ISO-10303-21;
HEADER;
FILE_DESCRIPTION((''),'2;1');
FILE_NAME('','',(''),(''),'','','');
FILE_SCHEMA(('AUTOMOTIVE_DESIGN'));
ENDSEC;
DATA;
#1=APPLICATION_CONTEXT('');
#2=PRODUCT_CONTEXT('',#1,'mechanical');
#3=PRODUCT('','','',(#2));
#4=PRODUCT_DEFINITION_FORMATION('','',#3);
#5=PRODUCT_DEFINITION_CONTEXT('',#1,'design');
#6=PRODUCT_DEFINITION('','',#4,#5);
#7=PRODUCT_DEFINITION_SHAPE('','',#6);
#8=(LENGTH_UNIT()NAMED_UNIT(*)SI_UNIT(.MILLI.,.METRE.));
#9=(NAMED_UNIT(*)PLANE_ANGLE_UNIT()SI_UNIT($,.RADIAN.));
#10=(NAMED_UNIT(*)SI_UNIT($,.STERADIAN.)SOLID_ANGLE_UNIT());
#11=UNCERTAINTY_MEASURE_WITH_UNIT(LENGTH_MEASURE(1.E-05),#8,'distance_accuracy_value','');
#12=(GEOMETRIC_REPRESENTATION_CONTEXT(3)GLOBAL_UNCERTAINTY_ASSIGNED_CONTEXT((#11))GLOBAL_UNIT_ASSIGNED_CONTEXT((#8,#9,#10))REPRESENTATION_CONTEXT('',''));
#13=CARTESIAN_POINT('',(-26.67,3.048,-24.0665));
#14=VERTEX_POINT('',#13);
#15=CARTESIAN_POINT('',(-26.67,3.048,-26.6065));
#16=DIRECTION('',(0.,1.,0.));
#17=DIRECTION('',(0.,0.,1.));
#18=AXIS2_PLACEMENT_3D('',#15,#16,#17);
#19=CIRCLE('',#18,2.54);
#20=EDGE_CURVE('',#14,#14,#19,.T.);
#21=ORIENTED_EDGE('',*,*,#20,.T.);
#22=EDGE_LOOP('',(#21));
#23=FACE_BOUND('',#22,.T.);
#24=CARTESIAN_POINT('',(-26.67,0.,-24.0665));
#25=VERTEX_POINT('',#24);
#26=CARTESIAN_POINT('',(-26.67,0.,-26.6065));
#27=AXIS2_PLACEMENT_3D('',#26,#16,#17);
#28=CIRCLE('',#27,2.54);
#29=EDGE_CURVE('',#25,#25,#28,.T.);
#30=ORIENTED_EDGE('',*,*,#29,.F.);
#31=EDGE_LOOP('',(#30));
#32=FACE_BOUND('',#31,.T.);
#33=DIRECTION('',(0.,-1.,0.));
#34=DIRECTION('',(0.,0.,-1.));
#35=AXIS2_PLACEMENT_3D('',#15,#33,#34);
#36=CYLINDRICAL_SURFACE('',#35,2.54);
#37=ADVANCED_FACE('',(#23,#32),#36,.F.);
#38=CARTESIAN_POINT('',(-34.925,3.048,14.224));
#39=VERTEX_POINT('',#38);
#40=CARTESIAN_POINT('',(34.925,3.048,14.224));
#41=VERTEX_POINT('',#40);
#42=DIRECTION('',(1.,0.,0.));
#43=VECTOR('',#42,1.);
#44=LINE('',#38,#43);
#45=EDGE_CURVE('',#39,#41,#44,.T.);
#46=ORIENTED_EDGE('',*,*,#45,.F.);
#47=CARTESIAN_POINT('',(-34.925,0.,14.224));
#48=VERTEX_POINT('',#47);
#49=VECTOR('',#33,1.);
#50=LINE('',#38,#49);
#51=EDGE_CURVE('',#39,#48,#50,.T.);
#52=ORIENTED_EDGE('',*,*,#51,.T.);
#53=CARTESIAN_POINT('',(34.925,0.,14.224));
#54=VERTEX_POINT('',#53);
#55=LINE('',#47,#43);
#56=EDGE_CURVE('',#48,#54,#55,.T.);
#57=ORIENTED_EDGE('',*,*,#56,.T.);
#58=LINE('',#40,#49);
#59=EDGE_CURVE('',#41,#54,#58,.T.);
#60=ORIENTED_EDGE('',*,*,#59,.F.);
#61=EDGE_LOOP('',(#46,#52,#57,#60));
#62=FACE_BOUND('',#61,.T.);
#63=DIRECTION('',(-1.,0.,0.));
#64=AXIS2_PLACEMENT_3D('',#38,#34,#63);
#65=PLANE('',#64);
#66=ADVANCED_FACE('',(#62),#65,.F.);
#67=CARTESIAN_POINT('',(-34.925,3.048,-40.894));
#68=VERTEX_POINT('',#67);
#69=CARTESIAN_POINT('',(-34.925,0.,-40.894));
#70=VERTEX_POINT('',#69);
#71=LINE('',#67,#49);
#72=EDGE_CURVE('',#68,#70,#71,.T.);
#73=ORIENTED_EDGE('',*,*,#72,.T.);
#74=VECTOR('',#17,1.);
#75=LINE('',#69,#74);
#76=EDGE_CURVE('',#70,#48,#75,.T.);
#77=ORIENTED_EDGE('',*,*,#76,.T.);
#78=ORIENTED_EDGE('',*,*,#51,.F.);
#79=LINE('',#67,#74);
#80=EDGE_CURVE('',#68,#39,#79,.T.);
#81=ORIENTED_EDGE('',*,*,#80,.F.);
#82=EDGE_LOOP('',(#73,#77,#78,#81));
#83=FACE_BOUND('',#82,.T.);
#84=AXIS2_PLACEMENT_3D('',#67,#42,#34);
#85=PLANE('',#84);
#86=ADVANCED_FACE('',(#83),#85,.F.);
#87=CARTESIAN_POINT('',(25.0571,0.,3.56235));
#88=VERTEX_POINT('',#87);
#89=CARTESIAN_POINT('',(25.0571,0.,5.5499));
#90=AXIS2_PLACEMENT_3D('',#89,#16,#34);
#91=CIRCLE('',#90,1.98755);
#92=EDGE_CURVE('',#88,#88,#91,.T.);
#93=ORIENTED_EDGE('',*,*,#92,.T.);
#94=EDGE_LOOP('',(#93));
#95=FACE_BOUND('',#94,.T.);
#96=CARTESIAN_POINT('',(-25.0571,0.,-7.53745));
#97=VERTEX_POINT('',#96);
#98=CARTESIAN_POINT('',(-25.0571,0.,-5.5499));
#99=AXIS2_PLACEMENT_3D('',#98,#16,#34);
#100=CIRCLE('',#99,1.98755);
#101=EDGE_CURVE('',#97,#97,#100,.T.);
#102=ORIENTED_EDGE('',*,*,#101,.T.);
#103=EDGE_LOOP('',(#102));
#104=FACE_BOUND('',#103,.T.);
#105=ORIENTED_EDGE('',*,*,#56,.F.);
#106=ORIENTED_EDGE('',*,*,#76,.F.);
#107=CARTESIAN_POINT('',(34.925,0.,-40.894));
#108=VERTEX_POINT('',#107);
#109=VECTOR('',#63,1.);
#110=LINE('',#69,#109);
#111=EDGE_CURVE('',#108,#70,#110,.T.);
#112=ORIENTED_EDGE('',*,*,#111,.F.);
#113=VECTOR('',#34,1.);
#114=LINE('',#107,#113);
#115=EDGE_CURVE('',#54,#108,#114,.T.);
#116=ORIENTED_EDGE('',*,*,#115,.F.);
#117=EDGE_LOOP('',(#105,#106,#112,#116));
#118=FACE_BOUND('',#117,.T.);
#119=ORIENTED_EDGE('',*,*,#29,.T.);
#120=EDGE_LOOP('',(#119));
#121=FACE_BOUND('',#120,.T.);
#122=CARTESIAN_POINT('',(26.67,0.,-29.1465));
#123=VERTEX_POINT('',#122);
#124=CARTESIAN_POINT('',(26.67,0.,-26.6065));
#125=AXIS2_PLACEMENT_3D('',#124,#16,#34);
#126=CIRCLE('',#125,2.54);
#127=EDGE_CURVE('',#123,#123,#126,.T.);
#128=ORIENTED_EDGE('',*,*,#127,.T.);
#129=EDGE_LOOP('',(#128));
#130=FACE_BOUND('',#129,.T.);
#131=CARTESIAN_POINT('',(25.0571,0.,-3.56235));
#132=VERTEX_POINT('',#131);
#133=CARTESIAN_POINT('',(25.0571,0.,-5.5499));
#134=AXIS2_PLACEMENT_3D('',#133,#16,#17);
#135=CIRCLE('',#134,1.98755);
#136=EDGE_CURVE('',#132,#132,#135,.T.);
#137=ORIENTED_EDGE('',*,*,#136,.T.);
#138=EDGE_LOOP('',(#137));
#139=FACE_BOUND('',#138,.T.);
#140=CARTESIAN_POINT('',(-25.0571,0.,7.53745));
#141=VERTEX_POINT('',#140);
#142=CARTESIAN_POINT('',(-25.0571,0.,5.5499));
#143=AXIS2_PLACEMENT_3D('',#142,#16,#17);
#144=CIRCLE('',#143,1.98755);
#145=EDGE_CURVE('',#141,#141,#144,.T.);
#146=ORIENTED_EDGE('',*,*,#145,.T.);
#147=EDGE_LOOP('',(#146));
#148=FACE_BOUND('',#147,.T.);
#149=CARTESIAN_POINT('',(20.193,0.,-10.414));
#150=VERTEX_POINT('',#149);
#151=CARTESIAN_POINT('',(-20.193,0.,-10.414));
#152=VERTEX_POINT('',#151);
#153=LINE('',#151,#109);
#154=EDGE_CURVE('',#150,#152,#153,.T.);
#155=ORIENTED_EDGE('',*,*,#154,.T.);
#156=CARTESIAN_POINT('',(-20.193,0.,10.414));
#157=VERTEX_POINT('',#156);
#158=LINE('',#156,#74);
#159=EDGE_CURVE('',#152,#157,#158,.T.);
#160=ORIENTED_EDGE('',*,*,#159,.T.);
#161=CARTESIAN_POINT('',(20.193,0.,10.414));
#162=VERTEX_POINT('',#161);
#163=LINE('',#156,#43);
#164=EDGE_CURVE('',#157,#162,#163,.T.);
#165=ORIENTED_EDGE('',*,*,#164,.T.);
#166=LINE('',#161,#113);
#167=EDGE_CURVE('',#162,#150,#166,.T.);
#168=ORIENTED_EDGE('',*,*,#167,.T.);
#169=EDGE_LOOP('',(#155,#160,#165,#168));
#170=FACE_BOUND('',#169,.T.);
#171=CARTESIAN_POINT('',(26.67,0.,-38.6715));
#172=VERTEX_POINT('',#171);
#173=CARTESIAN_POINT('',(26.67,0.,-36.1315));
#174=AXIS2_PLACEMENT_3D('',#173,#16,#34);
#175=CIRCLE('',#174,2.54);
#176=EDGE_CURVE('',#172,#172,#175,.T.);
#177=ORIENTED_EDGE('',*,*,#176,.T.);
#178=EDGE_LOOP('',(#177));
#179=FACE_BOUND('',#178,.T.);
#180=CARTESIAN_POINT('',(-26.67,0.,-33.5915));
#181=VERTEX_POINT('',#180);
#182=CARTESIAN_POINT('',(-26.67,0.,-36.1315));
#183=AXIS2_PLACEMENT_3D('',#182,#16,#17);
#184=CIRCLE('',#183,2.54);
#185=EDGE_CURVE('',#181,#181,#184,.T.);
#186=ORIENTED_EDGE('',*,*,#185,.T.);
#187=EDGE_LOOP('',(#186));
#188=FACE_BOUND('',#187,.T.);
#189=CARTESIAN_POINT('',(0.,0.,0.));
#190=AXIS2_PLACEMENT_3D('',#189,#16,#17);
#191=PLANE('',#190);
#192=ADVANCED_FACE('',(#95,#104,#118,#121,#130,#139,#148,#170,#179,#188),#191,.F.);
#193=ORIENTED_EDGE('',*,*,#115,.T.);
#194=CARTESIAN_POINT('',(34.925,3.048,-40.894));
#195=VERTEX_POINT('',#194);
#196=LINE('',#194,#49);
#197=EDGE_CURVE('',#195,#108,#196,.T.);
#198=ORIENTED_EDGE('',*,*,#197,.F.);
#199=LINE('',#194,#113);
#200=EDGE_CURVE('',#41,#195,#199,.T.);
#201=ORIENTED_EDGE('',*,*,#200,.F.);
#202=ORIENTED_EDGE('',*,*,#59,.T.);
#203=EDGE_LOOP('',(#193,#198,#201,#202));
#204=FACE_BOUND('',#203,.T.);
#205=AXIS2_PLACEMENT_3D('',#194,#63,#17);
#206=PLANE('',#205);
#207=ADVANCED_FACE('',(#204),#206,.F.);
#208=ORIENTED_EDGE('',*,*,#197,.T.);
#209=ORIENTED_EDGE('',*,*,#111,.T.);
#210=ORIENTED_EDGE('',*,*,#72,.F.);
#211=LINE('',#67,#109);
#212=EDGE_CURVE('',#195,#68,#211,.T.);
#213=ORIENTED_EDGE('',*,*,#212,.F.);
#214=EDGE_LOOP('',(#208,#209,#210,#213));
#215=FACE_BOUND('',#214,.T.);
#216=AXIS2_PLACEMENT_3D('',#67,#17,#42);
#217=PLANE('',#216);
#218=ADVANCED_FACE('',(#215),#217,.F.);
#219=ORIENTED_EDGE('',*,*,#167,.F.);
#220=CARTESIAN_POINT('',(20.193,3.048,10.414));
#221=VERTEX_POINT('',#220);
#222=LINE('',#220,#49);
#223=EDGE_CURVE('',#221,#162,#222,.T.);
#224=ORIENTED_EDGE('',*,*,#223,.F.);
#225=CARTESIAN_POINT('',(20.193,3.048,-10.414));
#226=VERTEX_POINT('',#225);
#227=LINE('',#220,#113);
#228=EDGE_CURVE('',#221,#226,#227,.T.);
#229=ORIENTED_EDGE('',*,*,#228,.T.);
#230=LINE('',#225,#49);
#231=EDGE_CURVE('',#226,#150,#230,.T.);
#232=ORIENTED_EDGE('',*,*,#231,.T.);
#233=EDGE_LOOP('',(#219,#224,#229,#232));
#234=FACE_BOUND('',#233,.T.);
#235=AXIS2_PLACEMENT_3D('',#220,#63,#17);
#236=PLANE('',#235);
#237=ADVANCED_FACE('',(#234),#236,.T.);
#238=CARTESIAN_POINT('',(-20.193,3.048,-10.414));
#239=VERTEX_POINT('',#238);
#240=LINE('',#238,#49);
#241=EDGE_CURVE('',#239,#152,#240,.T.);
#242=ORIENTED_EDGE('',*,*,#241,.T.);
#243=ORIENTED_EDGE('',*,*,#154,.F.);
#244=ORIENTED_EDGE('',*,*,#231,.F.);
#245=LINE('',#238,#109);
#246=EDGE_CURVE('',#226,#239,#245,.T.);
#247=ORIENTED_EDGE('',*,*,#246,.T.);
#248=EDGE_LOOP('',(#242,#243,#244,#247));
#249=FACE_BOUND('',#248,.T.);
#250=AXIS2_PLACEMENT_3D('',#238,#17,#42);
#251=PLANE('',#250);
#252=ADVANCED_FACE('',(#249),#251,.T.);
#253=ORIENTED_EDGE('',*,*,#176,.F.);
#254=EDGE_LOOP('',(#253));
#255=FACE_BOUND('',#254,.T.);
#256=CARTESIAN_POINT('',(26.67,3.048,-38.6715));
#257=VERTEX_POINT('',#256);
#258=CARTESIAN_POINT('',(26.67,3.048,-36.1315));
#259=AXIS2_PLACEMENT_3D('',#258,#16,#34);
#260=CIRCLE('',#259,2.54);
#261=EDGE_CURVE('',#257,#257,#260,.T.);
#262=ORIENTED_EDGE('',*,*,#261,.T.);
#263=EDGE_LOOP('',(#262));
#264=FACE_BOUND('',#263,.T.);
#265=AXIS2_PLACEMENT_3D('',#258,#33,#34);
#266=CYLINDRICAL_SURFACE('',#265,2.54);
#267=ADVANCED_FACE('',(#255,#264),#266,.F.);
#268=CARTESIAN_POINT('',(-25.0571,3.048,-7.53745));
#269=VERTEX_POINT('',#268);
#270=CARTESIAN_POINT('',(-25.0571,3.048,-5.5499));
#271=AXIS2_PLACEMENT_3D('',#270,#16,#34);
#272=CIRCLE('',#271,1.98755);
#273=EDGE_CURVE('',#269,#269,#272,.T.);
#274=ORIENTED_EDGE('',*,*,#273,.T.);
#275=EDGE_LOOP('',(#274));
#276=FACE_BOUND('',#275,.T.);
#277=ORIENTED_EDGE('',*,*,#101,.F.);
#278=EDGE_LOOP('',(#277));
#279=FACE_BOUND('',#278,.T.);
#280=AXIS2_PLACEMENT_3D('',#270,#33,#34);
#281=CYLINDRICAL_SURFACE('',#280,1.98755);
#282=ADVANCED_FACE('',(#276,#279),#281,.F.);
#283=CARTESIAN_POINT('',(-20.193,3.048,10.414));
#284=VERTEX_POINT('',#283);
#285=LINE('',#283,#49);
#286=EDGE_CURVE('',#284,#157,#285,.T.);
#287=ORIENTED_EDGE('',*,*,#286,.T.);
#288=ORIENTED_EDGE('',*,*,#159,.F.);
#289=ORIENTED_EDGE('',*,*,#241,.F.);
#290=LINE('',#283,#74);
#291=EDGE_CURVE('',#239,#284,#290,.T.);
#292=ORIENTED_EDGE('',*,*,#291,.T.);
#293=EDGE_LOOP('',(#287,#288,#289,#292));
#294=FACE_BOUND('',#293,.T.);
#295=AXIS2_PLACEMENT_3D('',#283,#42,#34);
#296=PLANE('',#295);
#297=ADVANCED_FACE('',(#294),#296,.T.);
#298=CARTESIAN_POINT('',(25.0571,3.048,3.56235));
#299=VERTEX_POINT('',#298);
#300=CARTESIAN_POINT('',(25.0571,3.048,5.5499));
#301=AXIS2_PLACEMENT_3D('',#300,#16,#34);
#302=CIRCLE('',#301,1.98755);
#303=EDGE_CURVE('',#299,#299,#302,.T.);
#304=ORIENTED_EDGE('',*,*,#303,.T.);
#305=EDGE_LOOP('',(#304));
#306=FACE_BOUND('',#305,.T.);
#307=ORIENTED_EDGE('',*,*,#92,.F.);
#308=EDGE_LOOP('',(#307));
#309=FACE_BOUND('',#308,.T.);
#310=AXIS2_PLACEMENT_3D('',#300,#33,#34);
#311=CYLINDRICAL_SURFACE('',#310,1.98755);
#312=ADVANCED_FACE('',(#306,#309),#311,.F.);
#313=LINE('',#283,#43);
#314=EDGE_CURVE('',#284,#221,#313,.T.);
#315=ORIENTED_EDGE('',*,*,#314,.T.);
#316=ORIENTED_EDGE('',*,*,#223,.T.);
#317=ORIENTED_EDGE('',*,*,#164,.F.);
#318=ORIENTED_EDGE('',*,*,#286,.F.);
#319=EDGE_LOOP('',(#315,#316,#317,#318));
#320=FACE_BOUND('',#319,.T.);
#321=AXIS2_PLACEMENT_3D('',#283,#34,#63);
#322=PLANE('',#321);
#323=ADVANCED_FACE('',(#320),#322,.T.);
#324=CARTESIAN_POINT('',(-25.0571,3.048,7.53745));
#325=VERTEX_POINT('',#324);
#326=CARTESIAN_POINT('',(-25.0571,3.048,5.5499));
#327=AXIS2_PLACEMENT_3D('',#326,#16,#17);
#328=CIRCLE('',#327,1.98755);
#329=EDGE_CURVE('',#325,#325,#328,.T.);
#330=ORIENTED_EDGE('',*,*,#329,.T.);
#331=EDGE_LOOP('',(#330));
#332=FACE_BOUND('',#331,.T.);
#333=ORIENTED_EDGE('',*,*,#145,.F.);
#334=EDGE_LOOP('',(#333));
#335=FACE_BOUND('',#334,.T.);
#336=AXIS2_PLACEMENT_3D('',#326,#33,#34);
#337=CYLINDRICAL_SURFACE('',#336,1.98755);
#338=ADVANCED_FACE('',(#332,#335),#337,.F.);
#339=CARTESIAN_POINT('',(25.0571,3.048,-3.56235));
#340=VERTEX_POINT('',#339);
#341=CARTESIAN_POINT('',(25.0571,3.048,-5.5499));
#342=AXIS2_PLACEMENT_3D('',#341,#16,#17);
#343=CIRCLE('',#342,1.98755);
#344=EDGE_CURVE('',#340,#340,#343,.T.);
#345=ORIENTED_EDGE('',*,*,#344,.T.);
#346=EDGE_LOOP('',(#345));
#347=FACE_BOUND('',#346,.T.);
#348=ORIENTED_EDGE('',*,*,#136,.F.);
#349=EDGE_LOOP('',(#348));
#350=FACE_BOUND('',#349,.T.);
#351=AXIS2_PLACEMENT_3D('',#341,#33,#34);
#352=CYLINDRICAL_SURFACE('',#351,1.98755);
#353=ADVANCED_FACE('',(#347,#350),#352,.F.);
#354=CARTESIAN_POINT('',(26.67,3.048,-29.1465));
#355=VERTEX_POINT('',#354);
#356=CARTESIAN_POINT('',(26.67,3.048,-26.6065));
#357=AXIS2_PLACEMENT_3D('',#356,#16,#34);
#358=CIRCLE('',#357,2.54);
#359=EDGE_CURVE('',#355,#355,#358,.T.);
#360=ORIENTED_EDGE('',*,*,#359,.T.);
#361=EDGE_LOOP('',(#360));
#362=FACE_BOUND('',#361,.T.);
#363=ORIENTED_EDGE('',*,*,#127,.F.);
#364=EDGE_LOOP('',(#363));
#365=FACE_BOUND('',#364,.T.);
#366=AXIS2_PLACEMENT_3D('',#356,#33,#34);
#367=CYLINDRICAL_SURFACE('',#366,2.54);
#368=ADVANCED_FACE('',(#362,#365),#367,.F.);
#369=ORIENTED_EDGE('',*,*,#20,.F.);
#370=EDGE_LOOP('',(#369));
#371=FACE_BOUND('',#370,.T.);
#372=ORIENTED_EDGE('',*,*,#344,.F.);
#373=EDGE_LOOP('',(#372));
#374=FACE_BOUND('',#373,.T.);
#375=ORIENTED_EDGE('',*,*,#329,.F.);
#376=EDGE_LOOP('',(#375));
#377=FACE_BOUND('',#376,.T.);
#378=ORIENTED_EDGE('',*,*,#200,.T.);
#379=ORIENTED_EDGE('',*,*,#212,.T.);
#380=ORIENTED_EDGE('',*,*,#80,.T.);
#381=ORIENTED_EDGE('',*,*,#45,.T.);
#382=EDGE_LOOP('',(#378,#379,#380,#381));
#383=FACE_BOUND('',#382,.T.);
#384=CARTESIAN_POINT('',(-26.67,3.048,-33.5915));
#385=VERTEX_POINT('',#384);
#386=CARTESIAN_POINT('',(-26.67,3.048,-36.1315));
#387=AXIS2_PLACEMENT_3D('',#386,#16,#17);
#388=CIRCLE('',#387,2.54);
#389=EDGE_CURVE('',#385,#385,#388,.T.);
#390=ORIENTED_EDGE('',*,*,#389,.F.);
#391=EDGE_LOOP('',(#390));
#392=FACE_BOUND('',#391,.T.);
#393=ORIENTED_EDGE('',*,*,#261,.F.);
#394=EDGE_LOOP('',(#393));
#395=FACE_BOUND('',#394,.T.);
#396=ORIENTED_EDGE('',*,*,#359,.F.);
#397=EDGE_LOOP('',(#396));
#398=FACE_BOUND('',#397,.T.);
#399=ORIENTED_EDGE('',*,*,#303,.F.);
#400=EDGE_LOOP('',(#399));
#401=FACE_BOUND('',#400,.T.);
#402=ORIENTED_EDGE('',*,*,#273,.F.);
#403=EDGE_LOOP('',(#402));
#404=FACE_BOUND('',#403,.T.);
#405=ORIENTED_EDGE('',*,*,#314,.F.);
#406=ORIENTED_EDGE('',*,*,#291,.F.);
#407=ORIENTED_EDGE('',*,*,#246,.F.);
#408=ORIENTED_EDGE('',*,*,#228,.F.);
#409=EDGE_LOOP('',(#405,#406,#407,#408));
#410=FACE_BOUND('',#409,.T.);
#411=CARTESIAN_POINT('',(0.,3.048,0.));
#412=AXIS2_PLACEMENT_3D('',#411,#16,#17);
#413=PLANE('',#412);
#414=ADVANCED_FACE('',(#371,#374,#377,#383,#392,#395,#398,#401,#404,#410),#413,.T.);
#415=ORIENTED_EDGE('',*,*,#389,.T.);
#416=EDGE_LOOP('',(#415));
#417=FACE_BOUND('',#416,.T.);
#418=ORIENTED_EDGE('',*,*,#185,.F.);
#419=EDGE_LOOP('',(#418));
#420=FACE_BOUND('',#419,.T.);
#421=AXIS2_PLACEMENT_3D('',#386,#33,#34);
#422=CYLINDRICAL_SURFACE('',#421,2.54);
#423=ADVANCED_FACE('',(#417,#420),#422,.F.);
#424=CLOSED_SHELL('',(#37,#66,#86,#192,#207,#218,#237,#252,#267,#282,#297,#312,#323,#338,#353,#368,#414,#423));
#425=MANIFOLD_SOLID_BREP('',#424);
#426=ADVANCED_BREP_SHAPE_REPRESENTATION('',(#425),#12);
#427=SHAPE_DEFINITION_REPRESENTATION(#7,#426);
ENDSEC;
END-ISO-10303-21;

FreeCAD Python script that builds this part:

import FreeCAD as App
import Part
import Sketcher

V = App.Vector
Q = App.Units.Quantity

doc = App.newDocument("Part")
body = doc.addObject("PartDesign::Body", "Body")

sketch1 = body.newObject("Sketcher::SketchObject", "Sketch")
sketch1.AttachmentSupport = (doc.getObject("XZ_Plane"), [""])
sketch1.MapMode = "FlatFace"
sketch1.addGeometry(Part.LineSegment(V(-34.9, -40.9, 0), V(-34.9, 14.2, 0)), False)
sketch1.addGeometry(Part.LineSegment(V(-34.9, 14.2, 0), V(34.9, 14.2, 0)), False)
sketch1.addGeometry(Part.LineSegment(V(34.9, 14.2, 0), V(34.9, -40.9, 0)), False)
sketch1.addGeometry(Part.LineSegment(V(34.9, -40.9, 0), V(-34.9, -40.9, 0)), False)
sketch1.addGeometry(Part.Circle(V(-25.1, 5.5, 0), V(0, 0, 1), 2), False)
sketch1.addGeometry(Part.LineSegment(V(20.2, 10.4, 0), V(-20.2, 10.4, 0)), False)
sketch1.addGeometry(Part.LineSegment(V(-20.2, 10.4, 0), V(-20.2, -10.4, 0)), False)
sketch1.addGeometry(Part.LineSegment(V(-20.2, -10.4, 0), V(20.2, -10.4, 0)), False)
sketch1.addGeometry(Part.LineSegment(V(20.2, -10.4, 0), V(20.2, 10.4, 0)), False)
sketch1.addGeometry(Part.Circle(V(-25.1, -5.5, 0), V(0, 0, 1), 2), False)
sketch1.addGeometry(Part.Circle(V(25.1, 5.5, 0), V(0, 0, 1), 2), False)
sketch1.addGeometry(Part.Circle(V(25.1, -5.5, 0), V(0, 0, 1), 2), False)
sketch1.addGeometry(Part.Circle(V(-26.7, -26.6, 0), V(0, 0, 1), 2.5), False)
sketch1.addGeometry(Part.Circle(V(-26.7, -36.1, 0), V(0, 0, 1), 2.5), False)
sketch1.addGeometry(Part.Circle(V(26.7, -26.6, 0), V(0, 0, 1), 2.5), False)
sketch1.addGeometry(Part.Circle(V(26.7, -36.1, 0), V(0, 0, 1), 2.5), False)
sketch1.addConstraint(Sketcher.Constraint("Coincident", 0, 2, 1, 1))
sketch1.addConstraint(Sketcher.Constraint("Coincident", 1, 2, 2, 1))
sketch1.addConstraint(Sketcher.Constraint("Coincident", 2, 2, 3, 1))
sketch1.addConstraint(Sketcher.Constraint("Coincident", 3, 2, 0, 1))
sketch1.addConstraint(Sketcher.Constraint("Coincident", 5, 2, 6, 1))
sketch1.addConstraint(Sketcher.Constraint("Coincident", 6, 2, 7, 1))
sketch1.addConstraint(Sketcher.Constraint("Coincident", 7, 2, 8, 1))
sketch1.addConstraint(Sketcher.Constraint("Coincident", 8, 2, 5, 1))
sketch1.addConstraint(Sketcher.Constraint("Vertical", 0))
sketch1.addConstraint(Sketcher.Constraint("Horizontal", 1))
sketch1.addConstraint(Sketcher.Constraint("Vertical", 2))
sketch1.addConstraint(Sketcher.Constraint("Horizontal", 3))
sketch1.addConstraint(Sketcher.Constraint("Horizontal", 5))
sketch1.addConstraint(Sketcher.Constraint("Vertical", 6))
sketch1.addConstraint(Sketcher.Constraint("Horizontal", 7))
sketch1.addConstraint(Sketcher.Constraint("Vertical", 8))
sketch1.addConstraint(Sketcher.Constraint("Equal", 4, 9))
sketch1.addConstraint(Sketcher.Constraint("Equal", 9, 10))
sketch1.addConstraint(Sketcher.Constraint("Equal", 10, 11))
sketch1.addConstraint(Sketcher.Constraint("Equal", 12, 13))
sketch1.addConstraint(Sketcher.Constraint("Equal", 13, 14))
sketch1.addConstraint(Sketcher.Constraint("Equal", 14, 15))
sketch1.addConstraint(Sketcher.Constraint("Symmetric", 9, 3, 10, 3, -1, 1))
sketch1.addConstraint(Sketcher.Constraint("Symmetric", 4, 3, 11, 3, -1, 1))
sketch1.addConstraint(Sketcher.Constraint("Symmetric", 5, 2, 7, 2, -1, 1))
sketch1.addConstraint(Sketcher.Constraint("Symmetric", 4, 3, 10, 3, -2))
sketch1.addConstraint(Sketcher.Constraint("Symmetric", 12, 3, 14, 3, -2))
sketch1.addConstraint(Sketcher.Constraint("Symmetric", 13, 3, 15, 3, -2))
sketch1.addConstraint(Sketcher.Constraint("Vertical", 12, 3, 13, 3))
sketch1.addConstraint(Sketcher.Constraint("Diameter", 12, Q("0.2 in")))
sketch1.addConstraint(Sketcher.Constraint("Diameter", 4, Q("0.1565 in")))
sketch1.addConstraint(Sketcher.Constraint("DistanceX", 1, 1, 1, 2, Q("2.75 in")))
sketch1.addConstraint(Sketcher.Constraint("DistanceX", 5, 2, 5, 1, Q("1.59 in")))
sketch1.addConstraint(Sketcher.Constraint("DistanceY", 0, 1, 0, 2, Q("2.17 in")))
sketch1.addConstraint(Sketcher.Constraint("DistanceY", 6, 2, 6, 1, Q("0.82 in")))
sketch1.addConstraint(Sketcher.Constraint("DistanceX", 12, 3, 14, 3, Q("2.1 in")))
sketch1.addConstraint(Sketcher.Constraint("DistanceY", -1, 1, 0, 2, Q("0.56 in")))
sketch1.addConstraint(Sketcher.Constraint("DistanceX", 0, 2, 5, 2, Q("0.58 in")))
sketch1.addConstraint(Sketcher.Constraint("DistanceY", 9, 3, 4, 3, Q("0.437 in")))
sketch1.addConstraint(Sketcher.Constraint("DistanceX", 4, 3, 10, 3, Q("1.973 in")))
sketch1.addConstraint(Sketcher.Constraint("DistanceY", 12, 3, 9, 3, Q("0.829 in")))
sketch1.addConstraint(Sketcher.Constraint("DistanceY", 13, 3, 12, 3, Q("0.375 in")))
pad1 = body.newObject("PartDesign::Pad", "Pad")
pad1.Profile = sketch1
pad1.Length = Q("0.12 in")
pad1.Reversed = True

doc.recompute()
